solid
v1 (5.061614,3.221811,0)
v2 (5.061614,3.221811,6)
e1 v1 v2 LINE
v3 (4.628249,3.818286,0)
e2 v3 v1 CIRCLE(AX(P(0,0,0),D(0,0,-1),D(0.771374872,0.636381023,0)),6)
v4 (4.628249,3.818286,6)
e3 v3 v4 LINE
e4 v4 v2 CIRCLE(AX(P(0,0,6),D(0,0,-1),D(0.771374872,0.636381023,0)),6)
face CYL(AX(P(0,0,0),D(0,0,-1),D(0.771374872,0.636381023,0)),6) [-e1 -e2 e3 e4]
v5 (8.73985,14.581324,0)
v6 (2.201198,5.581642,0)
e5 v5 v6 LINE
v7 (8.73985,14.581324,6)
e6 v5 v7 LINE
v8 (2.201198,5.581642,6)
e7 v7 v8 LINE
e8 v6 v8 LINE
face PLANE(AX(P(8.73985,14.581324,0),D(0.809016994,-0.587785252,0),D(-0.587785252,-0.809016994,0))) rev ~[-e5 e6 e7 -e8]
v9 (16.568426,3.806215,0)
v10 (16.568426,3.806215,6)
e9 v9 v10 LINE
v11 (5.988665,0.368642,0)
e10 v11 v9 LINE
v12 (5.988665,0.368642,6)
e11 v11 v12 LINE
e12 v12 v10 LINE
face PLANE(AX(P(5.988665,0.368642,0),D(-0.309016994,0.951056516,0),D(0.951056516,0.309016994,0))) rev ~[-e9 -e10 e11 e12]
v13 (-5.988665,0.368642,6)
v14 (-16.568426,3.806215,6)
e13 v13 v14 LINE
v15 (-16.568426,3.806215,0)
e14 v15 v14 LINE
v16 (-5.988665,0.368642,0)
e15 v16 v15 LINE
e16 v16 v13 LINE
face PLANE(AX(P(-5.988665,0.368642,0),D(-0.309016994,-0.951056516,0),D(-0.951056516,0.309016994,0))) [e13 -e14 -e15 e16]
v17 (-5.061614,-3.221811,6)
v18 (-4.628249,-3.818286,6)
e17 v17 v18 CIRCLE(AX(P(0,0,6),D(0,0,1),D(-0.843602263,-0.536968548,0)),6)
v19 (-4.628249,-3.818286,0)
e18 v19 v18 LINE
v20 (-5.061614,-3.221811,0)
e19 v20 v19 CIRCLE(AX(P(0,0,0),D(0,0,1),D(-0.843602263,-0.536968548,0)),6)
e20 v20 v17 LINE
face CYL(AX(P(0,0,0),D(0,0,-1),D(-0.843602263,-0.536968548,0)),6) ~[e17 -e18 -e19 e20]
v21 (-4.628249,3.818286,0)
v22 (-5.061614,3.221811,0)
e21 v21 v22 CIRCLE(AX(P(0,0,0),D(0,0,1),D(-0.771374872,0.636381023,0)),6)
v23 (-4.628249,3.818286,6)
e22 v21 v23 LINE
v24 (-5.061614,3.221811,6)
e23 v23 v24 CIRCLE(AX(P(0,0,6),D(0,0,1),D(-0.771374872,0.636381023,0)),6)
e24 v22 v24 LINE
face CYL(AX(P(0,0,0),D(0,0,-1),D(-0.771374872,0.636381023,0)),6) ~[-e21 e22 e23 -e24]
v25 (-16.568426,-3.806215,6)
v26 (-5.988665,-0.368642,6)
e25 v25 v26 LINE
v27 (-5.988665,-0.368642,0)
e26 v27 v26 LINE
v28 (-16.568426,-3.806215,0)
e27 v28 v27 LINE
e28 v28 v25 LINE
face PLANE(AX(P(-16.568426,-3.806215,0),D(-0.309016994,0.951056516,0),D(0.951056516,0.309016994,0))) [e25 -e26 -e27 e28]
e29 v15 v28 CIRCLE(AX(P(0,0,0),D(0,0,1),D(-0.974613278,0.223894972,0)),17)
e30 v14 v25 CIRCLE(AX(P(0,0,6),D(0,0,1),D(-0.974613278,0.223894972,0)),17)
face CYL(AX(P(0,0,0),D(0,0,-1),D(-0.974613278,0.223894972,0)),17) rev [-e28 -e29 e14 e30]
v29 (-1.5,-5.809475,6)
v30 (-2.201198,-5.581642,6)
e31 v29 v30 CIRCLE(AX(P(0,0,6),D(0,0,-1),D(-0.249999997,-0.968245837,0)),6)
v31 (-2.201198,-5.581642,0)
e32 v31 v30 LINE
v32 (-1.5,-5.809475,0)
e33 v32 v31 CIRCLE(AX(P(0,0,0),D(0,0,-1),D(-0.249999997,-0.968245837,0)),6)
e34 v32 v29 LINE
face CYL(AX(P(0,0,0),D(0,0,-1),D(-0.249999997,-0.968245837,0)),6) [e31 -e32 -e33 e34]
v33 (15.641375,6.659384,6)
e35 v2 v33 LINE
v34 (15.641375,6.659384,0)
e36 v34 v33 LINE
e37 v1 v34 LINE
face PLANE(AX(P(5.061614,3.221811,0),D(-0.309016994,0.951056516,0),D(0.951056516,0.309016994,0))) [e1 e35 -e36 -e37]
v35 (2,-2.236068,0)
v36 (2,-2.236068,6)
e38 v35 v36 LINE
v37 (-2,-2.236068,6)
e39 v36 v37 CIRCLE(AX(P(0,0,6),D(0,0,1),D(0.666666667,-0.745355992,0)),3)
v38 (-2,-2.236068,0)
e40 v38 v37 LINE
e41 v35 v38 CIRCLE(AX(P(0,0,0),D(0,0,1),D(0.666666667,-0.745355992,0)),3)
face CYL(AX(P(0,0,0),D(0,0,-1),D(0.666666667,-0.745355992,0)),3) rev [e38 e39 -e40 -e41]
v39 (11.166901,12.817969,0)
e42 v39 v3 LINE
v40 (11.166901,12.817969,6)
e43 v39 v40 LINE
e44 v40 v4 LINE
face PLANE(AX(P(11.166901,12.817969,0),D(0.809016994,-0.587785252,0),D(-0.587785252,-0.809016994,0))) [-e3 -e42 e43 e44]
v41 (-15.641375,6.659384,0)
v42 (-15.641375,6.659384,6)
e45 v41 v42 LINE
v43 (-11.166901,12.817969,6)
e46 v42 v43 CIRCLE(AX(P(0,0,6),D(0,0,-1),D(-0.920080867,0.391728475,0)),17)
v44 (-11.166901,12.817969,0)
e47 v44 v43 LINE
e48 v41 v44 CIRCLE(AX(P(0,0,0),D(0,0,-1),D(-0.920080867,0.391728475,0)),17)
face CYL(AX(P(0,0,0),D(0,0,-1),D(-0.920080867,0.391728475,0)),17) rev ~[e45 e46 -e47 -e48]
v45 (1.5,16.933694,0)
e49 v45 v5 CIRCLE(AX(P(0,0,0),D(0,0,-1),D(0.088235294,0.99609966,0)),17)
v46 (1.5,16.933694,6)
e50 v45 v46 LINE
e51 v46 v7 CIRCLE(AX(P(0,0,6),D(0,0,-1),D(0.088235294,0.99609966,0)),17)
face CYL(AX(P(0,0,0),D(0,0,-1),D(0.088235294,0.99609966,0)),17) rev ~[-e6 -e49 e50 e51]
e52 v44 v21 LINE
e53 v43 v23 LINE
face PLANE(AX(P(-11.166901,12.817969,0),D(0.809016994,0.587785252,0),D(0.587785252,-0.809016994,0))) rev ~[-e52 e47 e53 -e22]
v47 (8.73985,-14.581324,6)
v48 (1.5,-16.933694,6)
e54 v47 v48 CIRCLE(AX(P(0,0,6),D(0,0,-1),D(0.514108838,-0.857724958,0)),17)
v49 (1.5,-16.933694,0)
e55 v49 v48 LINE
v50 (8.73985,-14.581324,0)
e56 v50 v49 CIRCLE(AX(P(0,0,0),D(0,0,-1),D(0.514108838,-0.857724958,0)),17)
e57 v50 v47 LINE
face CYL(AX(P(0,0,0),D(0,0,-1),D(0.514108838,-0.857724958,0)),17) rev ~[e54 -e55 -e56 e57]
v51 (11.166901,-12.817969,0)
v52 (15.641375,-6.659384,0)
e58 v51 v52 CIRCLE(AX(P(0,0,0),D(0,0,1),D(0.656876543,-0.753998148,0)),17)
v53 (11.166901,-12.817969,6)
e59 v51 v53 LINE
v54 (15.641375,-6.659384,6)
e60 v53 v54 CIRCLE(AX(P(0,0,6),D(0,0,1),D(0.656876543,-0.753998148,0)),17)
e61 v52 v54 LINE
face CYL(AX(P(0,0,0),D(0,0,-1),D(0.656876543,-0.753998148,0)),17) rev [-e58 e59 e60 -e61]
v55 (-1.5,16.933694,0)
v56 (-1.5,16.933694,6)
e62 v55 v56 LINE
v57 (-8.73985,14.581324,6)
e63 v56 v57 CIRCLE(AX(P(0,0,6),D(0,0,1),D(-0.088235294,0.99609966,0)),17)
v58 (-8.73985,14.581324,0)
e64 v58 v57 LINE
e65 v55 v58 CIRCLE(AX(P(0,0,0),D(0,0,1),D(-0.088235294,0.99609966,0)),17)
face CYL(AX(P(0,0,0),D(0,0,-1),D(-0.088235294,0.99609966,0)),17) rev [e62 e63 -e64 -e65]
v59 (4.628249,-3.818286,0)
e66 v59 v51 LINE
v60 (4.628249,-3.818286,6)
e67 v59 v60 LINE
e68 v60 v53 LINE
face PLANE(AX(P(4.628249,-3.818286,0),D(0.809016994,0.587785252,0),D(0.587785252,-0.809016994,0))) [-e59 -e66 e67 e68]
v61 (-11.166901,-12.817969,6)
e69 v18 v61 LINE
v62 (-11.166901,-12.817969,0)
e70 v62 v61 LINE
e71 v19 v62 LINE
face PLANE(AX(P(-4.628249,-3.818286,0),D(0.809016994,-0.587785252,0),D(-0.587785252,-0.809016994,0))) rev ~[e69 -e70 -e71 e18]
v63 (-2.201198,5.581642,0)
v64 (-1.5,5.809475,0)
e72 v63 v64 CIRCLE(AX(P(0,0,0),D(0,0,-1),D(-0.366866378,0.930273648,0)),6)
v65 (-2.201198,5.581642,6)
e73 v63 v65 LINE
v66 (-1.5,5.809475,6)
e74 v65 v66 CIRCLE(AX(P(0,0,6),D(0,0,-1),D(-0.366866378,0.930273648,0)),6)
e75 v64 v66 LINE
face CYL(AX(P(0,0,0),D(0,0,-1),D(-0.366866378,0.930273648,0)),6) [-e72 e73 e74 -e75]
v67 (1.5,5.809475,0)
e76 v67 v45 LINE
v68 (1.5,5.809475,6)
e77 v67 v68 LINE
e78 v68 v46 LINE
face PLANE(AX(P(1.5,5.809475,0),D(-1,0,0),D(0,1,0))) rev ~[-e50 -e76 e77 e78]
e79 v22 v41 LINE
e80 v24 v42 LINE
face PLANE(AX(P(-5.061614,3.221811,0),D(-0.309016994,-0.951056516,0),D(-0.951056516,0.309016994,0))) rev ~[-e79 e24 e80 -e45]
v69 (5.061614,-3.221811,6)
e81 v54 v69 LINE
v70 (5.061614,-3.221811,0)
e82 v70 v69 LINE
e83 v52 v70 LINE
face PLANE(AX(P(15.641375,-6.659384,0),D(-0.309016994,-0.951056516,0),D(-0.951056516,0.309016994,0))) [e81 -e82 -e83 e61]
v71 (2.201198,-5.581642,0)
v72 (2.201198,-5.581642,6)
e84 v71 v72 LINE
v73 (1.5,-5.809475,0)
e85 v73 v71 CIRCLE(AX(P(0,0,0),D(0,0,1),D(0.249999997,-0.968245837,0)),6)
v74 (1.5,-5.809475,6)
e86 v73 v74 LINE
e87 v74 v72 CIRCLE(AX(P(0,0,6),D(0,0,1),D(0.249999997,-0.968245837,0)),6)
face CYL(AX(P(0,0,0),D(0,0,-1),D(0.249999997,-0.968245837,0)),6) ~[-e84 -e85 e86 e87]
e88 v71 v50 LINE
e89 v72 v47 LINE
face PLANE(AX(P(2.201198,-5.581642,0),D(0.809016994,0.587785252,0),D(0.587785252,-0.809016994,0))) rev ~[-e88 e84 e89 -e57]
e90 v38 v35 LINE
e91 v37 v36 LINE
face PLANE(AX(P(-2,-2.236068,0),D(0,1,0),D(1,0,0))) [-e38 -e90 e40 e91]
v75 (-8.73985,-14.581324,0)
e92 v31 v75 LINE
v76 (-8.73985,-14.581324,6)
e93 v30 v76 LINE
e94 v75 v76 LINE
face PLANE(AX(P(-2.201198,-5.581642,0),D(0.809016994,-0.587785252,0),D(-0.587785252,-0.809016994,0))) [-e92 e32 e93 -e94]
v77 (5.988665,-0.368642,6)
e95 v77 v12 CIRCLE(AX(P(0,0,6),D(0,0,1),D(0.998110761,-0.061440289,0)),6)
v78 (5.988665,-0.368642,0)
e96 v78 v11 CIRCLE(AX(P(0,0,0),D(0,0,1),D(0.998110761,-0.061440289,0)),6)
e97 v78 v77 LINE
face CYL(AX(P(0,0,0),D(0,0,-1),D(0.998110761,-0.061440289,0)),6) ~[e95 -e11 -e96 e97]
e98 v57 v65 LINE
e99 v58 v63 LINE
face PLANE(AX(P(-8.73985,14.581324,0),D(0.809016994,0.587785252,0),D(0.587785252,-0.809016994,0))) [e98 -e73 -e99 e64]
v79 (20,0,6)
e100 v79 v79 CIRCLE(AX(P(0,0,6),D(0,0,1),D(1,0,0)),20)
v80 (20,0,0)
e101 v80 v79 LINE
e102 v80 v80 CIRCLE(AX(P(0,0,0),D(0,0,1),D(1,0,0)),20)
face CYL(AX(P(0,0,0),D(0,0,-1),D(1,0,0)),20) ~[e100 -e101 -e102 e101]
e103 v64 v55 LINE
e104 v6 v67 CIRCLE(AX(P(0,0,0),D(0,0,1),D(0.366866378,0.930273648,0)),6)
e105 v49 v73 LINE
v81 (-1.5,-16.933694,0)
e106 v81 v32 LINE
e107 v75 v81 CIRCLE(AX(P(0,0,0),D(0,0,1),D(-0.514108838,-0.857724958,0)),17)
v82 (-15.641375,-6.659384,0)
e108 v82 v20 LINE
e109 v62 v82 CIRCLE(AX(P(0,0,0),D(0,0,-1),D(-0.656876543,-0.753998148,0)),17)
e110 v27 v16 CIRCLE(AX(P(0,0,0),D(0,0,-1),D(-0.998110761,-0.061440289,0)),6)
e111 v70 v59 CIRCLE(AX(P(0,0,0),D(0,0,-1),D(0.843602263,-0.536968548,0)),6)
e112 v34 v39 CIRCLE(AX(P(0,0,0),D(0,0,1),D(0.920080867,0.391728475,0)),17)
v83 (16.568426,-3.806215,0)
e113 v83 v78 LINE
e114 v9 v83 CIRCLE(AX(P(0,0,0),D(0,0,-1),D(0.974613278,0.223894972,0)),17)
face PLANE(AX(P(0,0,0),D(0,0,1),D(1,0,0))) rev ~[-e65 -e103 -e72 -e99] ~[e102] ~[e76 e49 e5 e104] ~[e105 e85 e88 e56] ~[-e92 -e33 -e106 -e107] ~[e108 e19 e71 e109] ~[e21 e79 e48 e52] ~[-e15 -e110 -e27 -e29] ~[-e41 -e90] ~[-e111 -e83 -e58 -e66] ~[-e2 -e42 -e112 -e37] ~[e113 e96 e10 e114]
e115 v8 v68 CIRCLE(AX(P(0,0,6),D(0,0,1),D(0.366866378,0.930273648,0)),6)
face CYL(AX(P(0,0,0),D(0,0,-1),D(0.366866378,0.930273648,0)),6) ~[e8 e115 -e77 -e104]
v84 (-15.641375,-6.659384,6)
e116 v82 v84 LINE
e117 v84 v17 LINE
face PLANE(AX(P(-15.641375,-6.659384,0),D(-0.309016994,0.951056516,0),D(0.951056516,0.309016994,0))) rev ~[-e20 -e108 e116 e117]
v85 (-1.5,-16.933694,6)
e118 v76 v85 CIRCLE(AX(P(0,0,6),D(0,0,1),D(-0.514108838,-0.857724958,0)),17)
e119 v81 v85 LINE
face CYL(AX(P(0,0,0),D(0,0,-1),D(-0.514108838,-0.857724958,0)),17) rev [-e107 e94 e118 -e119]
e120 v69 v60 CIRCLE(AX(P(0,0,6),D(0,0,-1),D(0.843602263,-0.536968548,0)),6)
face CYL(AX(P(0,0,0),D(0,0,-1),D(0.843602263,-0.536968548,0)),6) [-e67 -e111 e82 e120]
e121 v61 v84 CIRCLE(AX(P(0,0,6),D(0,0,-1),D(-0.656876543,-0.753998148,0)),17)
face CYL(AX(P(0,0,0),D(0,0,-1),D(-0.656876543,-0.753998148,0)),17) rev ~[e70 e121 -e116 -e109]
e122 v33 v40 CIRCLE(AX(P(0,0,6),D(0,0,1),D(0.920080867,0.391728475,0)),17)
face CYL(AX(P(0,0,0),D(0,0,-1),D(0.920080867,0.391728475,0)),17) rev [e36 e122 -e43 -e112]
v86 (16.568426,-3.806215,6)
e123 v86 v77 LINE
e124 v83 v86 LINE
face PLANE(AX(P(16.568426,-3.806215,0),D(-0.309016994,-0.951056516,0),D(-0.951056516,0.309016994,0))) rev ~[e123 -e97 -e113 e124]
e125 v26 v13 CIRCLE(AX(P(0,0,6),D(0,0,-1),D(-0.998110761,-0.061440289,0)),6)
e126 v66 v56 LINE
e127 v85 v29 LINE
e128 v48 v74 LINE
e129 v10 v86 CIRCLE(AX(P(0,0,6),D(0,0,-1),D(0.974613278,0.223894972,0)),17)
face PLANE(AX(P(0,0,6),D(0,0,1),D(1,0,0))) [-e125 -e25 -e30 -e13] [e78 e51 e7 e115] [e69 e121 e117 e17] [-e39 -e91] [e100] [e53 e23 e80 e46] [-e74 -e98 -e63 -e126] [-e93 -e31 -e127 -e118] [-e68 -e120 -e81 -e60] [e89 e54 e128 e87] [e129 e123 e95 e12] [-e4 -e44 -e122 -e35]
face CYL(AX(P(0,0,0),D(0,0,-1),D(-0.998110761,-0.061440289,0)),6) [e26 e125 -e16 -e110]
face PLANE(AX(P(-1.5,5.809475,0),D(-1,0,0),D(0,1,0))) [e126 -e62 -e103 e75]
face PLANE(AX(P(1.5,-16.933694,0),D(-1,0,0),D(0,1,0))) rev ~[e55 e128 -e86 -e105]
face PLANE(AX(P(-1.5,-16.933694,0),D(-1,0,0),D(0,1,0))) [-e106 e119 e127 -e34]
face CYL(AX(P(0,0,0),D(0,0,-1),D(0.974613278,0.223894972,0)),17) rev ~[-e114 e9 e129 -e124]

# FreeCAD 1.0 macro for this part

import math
import FreeCAD as App
import Part
import Sketcher

V = App.Vector
Q = App.Units.Quantity

doc = App.newDocument("Part")
body = doc.addObject("PartDesign::Body", "Body")

# Sketch on XY plane
sketch1 = body.newObject("Sketcher::SketchObject", "Sketch")
sketch1.AttachmentSupport = (doc.getObject("XY_Plane"), [""])
sketch1.MapMode = "FlatFace"
sketch1.addGeometry([
    Part.Circle(V(0, 0, 0), V(0, 0, 1), 20),  # 0
    Part.LineSegment(V(-1.5, -5.8, 0), V(-1.5, -16.9, 0)),  # 1
    Part.ArcOfCircle(Part.Circle(V(0, 0, 0), V(0, 0, 1), 17), math.radians(-121), math.radians(-95)),  # 2
    Part.LineSegment(V(-8.7, -14.6, 0), V(-2.2, -5.6, 0)),  # 3
    Part.ArcOfCircle(Part.Circle(V(0, 0, 0), V(0, 0, 1), 6), math.radians(-111.52), math.radians(-104.48)),  # 4
    Part.ArcOfCircle(Part.Circle(V(0, 0, 0), V(0, 0, 1), 17), math.radians(-157), math.radians(-131)),  # 5
    Part.LineSegment(V(-15.6, -6.7, 0), V(-5.1, -3.2, 0)),  # 6
    Part.ArcOfCircle(Part.Circle(V(0, 0, 0), V(0, 0, 1), 6), math.radians(-147.52), math.radians(-140.48)),  # 7
    Part.LineSegment(V(-4.6, -3.8, 0), V(-11.2, -12.8, 0)),  # 8
    Part.ArcOfCircle(Part.Circle(V(0, 0, 0), V(0, 0, 1), 17), math.radians(-85), math.radians(-59)),  # 9
    Part.LineSegment(V(1.5, -16.9, 0), V(1.5, -5.8, 0)),  # 10
    Part.ArcOfCircle(Part.Circle(V(0, 0, 0), V(0, 0, 1), 6), math.radians(-75.52), math.radians(-68.48)),  # 11
    Part.LineSegment(V(2.2, -5.6, 0), V(8.7, -14.6, 0)),  # 12
    Part.LineSegment(V(5.1, -3.2, 0), V(15.6, -6.7, 0)),  # 13
    Part.ArcOfCircle(Part.Circle(V(0, 0, 0), V(0, 0, 1), 17), math.radians(-49), math.radians(-23)),  # 14
    Part.LineSegment(V(11.2, -12.8, 0), V(4.6, -3.8, 0)),  # 15
    Part.ArcOfCircle(Part.Circle(V(0, 0, 0), V(0, 0, 1), 6), math.radians(-39.52), math.radians(-32.48)),  # 16
    Part.LineSegment(V(-6, -0.4, 0), V(-16.6, -3.8, 0)),  # 17
    Part.ArcOfCircle(Part.Circle(V(0, 0, 0), V(0, 0, 1), 17), math.radians(167), math.radians(193)),  # 18
    Part.LineSegment(V(-16.6, 3.8, 0), V(-6, 0.4, 0)),  # 19
    Part.ArcOfCircle(Part.Circle(V(0, 0, 0), V(0, 0, 1), 6), math.radians(176.48), math.radians(183.52)),  # 20
    Part.ArcOfCircle(Part.Circle(V(0, 0, 0), V(0, 0, 1), 6), math.radians(140.48), math.radians(147.52)),  # 21
    Part.LineSegment(V(-5.1, 3.2, 0), V(-15.6, 6.7, 0)),  # 22
    Part.ArcOfCircle(Part.Circle(V(0, 0, 0), V(0, 0, 1), 17), math.radians(131), math.radians(157)),  # 23
    Part.LineSegment(V(-11.2, 12.8, 0), V(-4.6, 3.8, 0)),  # 24
    Part.LineSegment(V(-1.5, 16.9, 0), V(-1.5, 5.8, 0)),  # 25
    Part.ArcOfCircle(Part.Circle(V(0, 0, 0), V(0, 0, 1), 6), math.radians(104.48), math.radians(111.52)),  # 26
    Part.LineSegment(V(-2.2, 5.6, 0), V(-8.7, 14.6, 0)),  # 27
    Part.ArcOfCircle(Part.Circle(V(0, 0, 0), V(0, 0, 1), 17), math.radians(95), math.radians(121)),  # 28
    Part.LineSegment(V(2, -2.2, 0), V(-2, -2.2, 0)),  # 29
    Part.ArcOfCircle(Part.Circle(V(0, 0, 0), V(0, 0, 1), 3), math.radians(-48), math.radians(228)),  # 30
    Part.ArcOfCircle(Part.Circle(V(0, 0, 0), V(0, 0, 1), 17), math.radians(-13), math.radians(13)),  # 31
    Part.LineSegment(V(16.6, -3.8, 0), V(6, -0.4, 0)),  # 32
    Part.ArcOfCircle(Part.Circle(V(0, 0, 0), V(0, 0, 1), 6), math.radians(-3.52), math.radians(3.52)),  # 33
    Part.LineSegment(V(6, 0.4, 0), V(16.6, 3.8, 0)),  # 34
    Part.LineSegment(V(4.6, 3.8, 0), V(11.2, 12.8, 0)),  # 35
    Part.ArcOfCircle(Part.Circle(V(0, 0, 0), V(0, 0, 1), 17), math.radians(23), math.radians(49)),  # 36
    Part.LineSegment(V(15.6, 6.7, 0), V(5.1, 3.2, 0)),  # 37
    Part.ArcOfCircle(Part.Circle(V(0, 0, 0), V(0, 0, 1), 6), math.radians(32.48), math.radians(39.52)),  # 38
    Part.ArcOfCircle(Part.Circle(V(0, 0, 0), V(0, 0, 1), 17), math.radians(59), math.radians(85)),  # 39
    Part.LineSegment(V(8.7, 14.6, 0), V(2.2, 5.6, 0)),  # 40
    Part.ArcOfCircle(Part.Circle(V(0, 0, 0), V(0, 0, 1), 6), math.radians(68.48), math.radians(75.52)),  # 41
    Part.LineSegment(V(1.5, 5.8, 0), V(1.5, 16.9, 0)),  # 42
], False)
sketch1.addConstraint([
    Sketcher.Constraint("Coincident", 1, 2, 2, 2),
    Sketcher.Constraint("Coincident", 2, 1, 3, 1),
    Sketcher.Constraint("Coincident", 3, 2, 4, 1),
    Sketcher.Constraint("Coincident", 4, 2, 1, 1),
    Sketcher.Constraint("Coincident", 5, 1, 6, 1),
    Sketcher.Constraint("Coincident", 6, 2, 7, 1),
    Sketcher.Constraint("Coincident", 7, 2, 8, 1),
    Sketcher.Constraint("Coincident", 8, 2, 5, 2),
    Sketcher.Constraint("Coincident", 9, 1, 10, 1),
    Sketcher.Constraint("Coincident", 10, 2, 11, 1),
    Sketcher.Constraint("Coincident", 11, 2, 12, 1),
    Sketcher.Constraint("Coincident", 12, 2, 9, 2),
    Sketcher.Constraint("Coincident", 13, 2, 14, 2),
    Sketcher.Constraint("Coincident", 14, 1, 15, 1),
    Sketcher.Constraint("Coincident", 15, 2, 16, 1),
    Sketcher.Constraint("Coincident", 16, 2, 13, 1),
    Sketcher.Constraint("Coincident", 17, 2, 18, 2),
    Sketcher.Constraint("Coincident", 18, 1, 19, 1),
    Sketcher.Constraint("Coincident", 19, 2, 20, 1),
    Sketcher.Constraint("Coincident", 20, 2, 17, 1),
    Sketcher.Constraint("Coincident", 21, 2, 22, 1),
    Sketcher.Constraint("Coincident", 22, 2, 23, 2),
    Sketcher.Constraint("Coincident", 23, 1, 24, 1),
    Sketcher.Constraint("Coincident", 24, 2, 21, 1),
    Sketcher.Constraint("Coincident", 25, 2, 26, 1),
    Sketcher.Constraint("Coincident", 26, 2, 27, 1),
    Sketcher.Constraint("Coincident", 27, 2, 28, 2),
    Sketcher.Constraint("Coincident", 28, 1, 25, 1),
    Sketcher.Constraint("Coincident", 29, 1, 30, 1),
    Sketcher.Constraint("Coincident", 30, 2, 29, 2),
    Sketcher.Constraint("Coincident", 31, 1, 32, 1),
    Sketcher.Constraint("Coincident", 32, 2, 33, 1),
    Sketcher.Constraint("Coincident", 33, 2, 34, 1),
    Sketcher.Constraint("Coincident", 34, 2, 31, 2),
    Sketcher.Constraint("Coincident", 35, 2, 36, 2),
    Sketcher.Constraint("Coincident", 36, 1, 37, 1),
    Sketcher.Constraint("Coincident", 37, 2, 38, 1),
    Sketcher.Constraint("Coincident", 38, 2, 35, 1),
    Sketcher.Constraint("Coincident", 39, 1, 40, 1),
    Sketcher.Constraint("Coincident", 40, 2, 41, 1),
    Sketcher.Constraint("Coincident", 41, 2, 42, 1),
    Sketcher.Constraint("Coincident", 42, 2, 39, 2),
    Sketcher.Constraint("Vertical", 1),
    Sketcher.Constraint("Vertical", 10),
    Sketcher.Constraint("Vertical", 25),
    Sketcher.Constraint("Horizontal", 29),
    Sketcher.Constraint("Vertical", 42),
    Sketcher.Constraint("Coincident", 0, 3, -1, 1),
    Sketcher.Constraint("Coincident", 2, 3, -1, 1),
    Sketcher.Constraint("Coincident", 4, 3, -1, 1),
    Sketcher.Constraint("Coincident", 5, 3, -1, 1),
    Sketcher.Constraint("Coincident", 7, 3, -1, 1),
    Sketcher.Constraint("Coincident", 9, 3, -1, 1),
    Sketcher.Constraint("Coincident", 11, 3, -1, 1),
    Sketcher.Constraint("Coincident", 14, 3, -1, 1),
    Sketcher.Constraint("Coincident", 16, 3, -1, 1),
    Sketcher.Constraint("Coincident", 18, 3, -1, 1),
    Sketcher.Constraint("Coincident", 20, 3, -1, 1),
    Sketcher.Constraint("Coincident", 21, 3, -1, 1),
    Sketcher.Constraint("Coincident", 23, 3, -1, 1),
    Sketcher.Constraint("Coincident", 26, 3, -1, 1),
    Sketcher.Constraint("Coincident", 28, 3, -1, 1),
    Sketcher.Constraint("Coincident", 30, 3, -1, 1),
    Sketcher.Constraint("Coincident", 31, 3, -1, 1),
    Sketcher.Constraint("Coincident", 33, 3, -1, 1),
    Sketcher.Constraint("Coincident", 36, 3, -1, 1),
    Sketcher.Constraint("Coincident", 38, 3, -1, 1),
    Sketcher.Constraint("Coincident", 39, 3, -1, 1),
    Sketcher.Constraint("Coincident", 41, 3, -1, 1),
    Sketcher.Constraint("Equal", 2, 5),
    Sketcher.Constraint("Equal", 4, 7),
    Sketcher.Constraint("Equal", 5, 9),
    Sketcher.Constraint("Equal", 7, 11),
    Sketcher.Constraint("Equal", 9, 14),
    Sketcher.Constraint("Equal", 11, 16),
    Sketcher.Constraint("Equal", 14, 18),
    Sketcher.Constraint("Equal", 16, 20),
    Sketcher.Constraint("Equal", 20, 21),
    Sketcher.Constraint("Equal", 18, 23),
    Sketcher.Constraint("Equal", 21, 26),
    Sketcher.Constraint("Equal", 23, 28),
    Sketcher.Constraint("Equal", 28, 31),
    Sketcher.Constraint("Equal", 26, 33),
    Sketcher.Constraint("Equal", 31, 36),
    Sketcher.Constraint("Equal", 33, 38),
    Sketcher.Constraint("Equal", 36, 39),
    Sketcher.Constraint("Equal", 38, 41),
    Sketcher.Constraint("Parallel", 3, 8),
    Sketcher.Constraint("Parallel", 12, 15),
    Sketcher.Constraint("Parallel", 6, 17),
    Sketcher.Constraint("Parallel", 13, 19),
    Sketcher.Constraint("Parallel", 19, 22),
    Sketcher.Constraint("Parallel", 15, 24),
    Sketcher.Constraint("Parallel", 24, 27),
    Sketcher.Constraint("Parallel", 22, 32),
    Sketcher.Constraint("Parallel", 17, 34),
    Sketcher.Constraint("Parallel", 8, 35),
    Sketcher.Constraint("Parallel", 34, 37),
    Sketcher.Constraint("Parallel", 35, 40),
    Sketcher.Constraint("Horizontal", 1, 2, 9, 1),
    Sketcher.Constraint("Horizontal", 3, 2, 11, 2),
    Sketcher.Constraint("Horizontal", 2, 1, 12, 2),
    Sketcher.Constraint("Horizontal", 5, 1, 13, 2),
    Sketcher.Constraint("Horizontal", 8, 2, 14, 1),
    Sketcher.Constraint("Horizontal", 6, 2, 16, 2),
    Sketcher.Constraint("Horizontal", 17, 2, 31, 1),
    Sketcher.Constraint("Horizontal", 19, 2, 33, 2),
    Sketcher.Constraint("Horizontal", 23, 1, 35, 2),
    Sketcher.Constraint("Horizontal", 22, 2, 36, 1),
    Sketcher.Constraint("Horizontal", 27, 2, 39, 1),
    Sketcher.Constraint("Horizontal", 25, 2, 41, 2),
    Sketcher.Constraint("Vertical", 17, 2, 18, 1),
    Sketcher.Constraint("Vertical", 6, 2, 21, 2),
    Sketcher.Constraint("Vertical", 8, 2, 23, 1),
    Sketcher.Constraint("Vertical", 4, 2, 25, 2),
    Sketcher.Constraint("Vertical", 3, 2, 26, 2),
    Sketcher.Constraint("Equal", 3, 6),
    Sketcher.Constraint("Equal", 6, 8),
    Sketcher.Constraint("Equal", 15, 17),
    Sketcher.Constraint("Diameter", 0, 40.0),
    Sketcher.Constraint("Radius", 2, 17.0),
    Sketcher.Constraint("Radius", 4, 6.0),
    Sketcher.Constraint("Radius", 30, 3.0),
    Sketcher.Constraint("DistanceX", 29, 2, 29, 1, 4.0),
    Sketcher.Constraint("Angle", 3, Q("54 deg")),
    Sketcher.Constraint("Angle", 6, Q("18 deg")),
    Sketcher.Constraint("DistanceX", 1, 2, -1, 1, 1.5),
    Sketcher.Constraint("DistanceX", 3, 2, -1, 1, 2.201198),
])
pad1 = body.newObject("PartDesign::Pad", "Pad")
pad1.Profile = sketch1
pad1.Length = 6

doc.recompute()
